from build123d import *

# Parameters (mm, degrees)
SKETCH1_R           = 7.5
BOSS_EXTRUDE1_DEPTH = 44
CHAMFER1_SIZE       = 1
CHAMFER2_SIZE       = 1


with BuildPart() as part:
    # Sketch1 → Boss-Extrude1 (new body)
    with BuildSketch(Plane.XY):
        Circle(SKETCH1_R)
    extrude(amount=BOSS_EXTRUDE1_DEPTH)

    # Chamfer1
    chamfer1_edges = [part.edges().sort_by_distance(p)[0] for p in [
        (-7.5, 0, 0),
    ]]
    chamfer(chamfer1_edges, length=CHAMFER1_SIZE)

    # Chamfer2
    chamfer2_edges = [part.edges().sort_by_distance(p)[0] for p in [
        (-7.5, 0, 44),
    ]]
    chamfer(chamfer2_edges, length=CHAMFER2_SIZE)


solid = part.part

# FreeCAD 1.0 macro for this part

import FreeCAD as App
import Part
import Sketcher

V = App.Vector
Q = App.Units.Quantity


def edges_at(feature, points):
    """Names of the edges that pass closest to the given points."""
    edges = feature.Shape.Edges
    near = lambda p: min(range(len(edges)), key=lambda i: edges[i].distToShape(Part.Vertex(*p))[0])
    return sorted({f"Edge{near(p) + 1}" for p in points})

doc = App.newDocument("Part")
body = doc.addObject("PartDesign::Body", "Body")

sketch1 = doc.addObject("Sketcher::SketchObject", "Sketch")
body.addObject(sketch1)
sketch1.AttachmentSupport = (doc.XY_Plane, [""])
sketch1.MapMode = "FlatFace"
sketch1.addGeometry(Part.Circle(V(0, 0, 0), V(0, 0, 1), 8), False)
sketch1.addConstraint([
    Sketcher.Constraint("Coincident", 0, 3, -1, 1),
    Sketcher.Constraint("Diameter", 0, Q("15 mm")),
])
pad1 = doc.addObject("PartDesign::Pad", "Pad")
body.addObject(pad1)
pad1.Profile = sketch1
pad1.Length = 44
doc.recompute()

chamfer = doc.addObject("PartDesign::Chamfer", "Chamfer")
body.addObject(chamfer)
chamfer.Base = (pad1, edges_at(pad1, [(-7.5, 0, 0)]))
chamfer.Size = 1
doc.recompute()

chamfer2 = doc.addObject("PartDesign::Chamfer", "Chamfer001")
body.addObject(chamfer2)
chamfer2.Base = (chamfer, edges_at(chamfer, [(-7.5, 0, 44)]))
chamfer2.Size = 1

doc.recompute()
